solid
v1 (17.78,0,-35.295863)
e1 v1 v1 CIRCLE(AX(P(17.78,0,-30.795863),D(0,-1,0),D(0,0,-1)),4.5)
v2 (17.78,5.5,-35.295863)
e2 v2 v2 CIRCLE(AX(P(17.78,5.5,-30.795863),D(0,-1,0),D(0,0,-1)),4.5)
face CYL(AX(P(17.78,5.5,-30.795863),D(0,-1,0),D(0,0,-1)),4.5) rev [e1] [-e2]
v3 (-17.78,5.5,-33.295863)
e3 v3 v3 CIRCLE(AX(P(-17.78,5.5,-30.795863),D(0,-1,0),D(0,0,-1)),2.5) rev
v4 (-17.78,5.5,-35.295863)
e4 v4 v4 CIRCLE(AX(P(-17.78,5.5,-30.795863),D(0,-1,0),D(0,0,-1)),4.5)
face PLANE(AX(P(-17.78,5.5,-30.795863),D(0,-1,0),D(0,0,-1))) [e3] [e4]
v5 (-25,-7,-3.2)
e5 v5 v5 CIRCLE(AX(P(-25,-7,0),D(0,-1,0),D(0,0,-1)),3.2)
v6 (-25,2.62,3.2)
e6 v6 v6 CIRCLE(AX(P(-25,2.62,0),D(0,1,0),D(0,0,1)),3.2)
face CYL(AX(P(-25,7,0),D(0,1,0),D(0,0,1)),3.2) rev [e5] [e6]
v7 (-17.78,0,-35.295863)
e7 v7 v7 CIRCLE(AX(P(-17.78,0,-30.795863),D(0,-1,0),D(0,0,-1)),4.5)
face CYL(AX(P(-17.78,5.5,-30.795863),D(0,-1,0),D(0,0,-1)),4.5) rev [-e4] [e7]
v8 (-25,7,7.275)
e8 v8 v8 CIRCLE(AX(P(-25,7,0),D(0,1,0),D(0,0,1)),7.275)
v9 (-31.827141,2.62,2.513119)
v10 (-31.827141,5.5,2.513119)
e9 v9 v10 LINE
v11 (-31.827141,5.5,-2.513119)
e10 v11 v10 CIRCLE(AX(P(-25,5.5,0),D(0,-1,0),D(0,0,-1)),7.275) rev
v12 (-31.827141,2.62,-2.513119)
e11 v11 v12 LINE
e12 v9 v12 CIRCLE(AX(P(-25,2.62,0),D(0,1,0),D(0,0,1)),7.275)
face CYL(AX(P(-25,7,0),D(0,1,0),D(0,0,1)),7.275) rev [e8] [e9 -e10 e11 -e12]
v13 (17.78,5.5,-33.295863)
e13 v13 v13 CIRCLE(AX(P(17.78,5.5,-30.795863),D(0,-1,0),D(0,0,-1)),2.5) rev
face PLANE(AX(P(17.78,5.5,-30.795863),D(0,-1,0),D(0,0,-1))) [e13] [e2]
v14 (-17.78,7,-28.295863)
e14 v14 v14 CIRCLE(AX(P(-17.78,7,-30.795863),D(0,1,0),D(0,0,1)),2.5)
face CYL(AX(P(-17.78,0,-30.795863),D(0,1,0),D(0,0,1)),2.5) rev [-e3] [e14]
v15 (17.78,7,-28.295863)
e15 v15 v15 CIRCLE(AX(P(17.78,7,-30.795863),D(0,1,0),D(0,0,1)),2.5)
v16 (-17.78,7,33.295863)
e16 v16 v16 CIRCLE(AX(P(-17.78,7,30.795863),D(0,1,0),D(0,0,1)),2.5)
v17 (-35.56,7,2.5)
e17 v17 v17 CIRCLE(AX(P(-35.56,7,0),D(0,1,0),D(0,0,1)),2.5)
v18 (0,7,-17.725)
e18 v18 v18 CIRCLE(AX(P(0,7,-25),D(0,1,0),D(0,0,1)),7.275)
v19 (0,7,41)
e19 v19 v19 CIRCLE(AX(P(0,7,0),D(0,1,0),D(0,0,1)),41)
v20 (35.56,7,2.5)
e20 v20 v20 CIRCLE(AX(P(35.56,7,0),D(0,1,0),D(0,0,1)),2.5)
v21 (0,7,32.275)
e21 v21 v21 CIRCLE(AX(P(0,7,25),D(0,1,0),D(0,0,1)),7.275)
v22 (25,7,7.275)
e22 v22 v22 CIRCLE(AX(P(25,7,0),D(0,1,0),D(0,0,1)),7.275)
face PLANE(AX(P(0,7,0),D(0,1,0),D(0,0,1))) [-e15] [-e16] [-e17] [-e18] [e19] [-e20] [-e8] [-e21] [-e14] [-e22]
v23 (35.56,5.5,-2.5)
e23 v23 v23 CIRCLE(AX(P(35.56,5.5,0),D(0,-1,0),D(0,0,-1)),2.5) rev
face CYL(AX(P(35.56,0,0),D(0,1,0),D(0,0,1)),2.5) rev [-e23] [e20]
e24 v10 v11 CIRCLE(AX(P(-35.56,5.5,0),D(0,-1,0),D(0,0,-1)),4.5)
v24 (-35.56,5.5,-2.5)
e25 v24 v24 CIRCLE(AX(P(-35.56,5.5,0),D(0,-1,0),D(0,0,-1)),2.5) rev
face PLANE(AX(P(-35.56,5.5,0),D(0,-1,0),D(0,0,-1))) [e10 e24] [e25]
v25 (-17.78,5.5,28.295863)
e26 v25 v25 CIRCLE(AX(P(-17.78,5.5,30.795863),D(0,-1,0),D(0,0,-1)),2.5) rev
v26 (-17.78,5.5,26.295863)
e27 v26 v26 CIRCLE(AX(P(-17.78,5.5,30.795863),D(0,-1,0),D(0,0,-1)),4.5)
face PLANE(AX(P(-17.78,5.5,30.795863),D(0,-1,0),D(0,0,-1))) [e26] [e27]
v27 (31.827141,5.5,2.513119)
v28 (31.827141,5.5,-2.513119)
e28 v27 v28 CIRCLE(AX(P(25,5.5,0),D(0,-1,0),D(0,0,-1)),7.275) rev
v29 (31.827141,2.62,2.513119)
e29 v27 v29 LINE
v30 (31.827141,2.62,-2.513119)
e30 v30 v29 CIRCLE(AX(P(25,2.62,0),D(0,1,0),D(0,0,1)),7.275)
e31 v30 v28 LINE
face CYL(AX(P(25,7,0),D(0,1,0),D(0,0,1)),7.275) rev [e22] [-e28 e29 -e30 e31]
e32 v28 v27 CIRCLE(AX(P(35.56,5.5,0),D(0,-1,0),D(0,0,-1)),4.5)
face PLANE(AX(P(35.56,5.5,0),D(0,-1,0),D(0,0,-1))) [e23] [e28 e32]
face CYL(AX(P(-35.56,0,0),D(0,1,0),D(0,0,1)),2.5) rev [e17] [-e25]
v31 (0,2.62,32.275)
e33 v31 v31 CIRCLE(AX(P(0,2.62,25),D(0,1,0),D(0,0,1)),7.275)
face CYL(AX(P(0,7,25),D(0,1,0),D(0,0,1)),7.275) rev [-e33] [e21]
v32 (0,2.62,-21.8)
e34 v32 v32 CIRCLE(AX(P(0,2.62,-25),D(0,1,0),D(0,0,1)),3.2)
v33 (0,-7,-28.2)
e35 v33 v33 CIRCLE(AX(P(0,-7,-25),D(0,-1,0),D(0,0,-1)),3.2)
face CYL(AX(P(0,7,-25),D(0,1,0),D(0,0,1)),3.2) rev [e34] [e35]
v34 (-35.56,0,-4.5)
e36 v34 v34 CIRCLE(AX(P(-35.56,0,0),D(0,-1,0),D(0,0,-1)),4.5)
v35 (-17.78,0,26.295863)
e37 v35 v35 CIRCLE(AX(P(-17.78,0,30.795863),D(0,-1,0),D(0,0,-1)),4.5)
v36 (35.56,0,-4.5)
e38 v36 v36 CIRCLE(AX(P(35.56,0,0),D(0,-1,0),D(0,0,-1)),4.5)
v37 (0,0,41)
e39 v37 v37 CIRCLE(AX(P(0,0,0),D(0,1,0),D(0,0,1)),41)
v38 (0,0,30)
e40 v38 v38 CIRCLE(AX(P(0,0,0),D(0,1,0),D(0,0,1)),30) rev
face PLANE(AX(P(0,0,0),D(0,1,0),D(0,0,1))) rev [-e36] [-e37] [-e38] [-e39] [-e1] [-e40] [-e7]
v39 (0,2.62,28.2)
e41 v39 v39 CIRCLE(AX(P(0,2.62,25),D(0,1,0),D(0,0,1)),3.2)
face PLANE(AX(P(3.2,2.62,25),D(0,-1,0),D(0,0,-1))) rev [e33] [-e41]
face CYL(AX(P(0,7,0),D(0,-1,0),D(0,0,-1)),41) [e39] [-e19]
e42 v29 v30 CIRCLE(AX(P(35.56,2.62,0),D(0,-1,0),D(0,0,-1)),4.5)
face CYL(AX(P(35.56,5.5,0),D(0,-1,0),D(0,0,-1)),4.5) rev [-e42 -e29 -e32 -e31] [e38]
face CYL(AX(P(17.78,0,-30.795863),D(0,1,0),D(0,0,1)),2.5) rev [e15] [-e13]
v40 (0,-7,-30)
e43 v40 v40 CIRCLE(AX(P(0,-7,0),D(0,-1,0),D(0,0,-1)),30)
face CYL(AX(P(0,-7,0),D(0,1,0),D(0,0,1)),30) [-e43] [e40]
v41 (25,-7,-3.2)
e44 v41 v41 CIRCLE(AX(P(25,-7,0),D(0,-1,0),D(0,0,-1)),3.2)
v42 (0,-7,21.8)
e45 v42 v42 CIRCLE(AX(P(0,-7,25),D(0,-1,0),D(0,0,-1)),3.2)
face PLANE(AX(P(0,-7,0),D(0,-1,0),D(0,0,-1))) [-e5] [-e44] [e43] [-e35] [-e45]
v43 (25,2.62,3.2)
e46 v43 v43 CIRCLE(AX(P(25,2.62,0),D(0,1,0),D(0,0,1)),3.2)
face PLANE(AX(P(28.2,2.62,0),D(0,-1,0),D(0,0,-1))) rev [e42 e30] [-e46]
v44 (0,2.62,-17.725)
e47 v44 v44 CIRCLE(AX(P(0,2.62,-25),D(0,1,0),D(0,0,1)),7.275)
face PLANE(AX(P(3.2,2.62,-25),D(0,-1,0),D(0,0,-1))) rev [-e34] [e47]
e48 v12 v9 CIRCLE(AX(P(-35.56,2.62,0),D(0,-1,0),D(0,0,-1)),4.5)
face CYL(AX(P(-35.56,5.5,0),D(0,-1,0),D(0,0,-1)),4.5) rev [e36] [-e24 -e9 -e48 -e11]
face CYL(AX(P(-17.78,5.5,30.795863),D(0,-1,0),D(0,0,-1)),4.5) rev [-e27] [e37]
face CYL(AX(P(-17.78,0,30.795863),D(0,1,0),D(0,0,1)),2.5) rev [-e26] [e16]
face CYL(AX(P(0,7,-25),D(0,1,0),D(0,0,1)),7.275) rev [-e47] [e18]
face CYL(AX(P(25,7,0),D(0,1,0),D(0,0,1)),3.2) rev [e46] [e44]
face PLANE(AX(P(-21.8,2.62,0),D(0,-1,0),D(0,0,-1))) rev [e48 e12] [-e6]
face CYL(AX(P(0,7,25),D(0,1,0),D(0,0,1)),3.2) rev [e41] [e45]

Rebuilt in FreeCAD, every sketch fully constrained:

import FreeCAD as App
import Part
import Sketcher

V = App.Vector

doc = App.newDocument("Part")
params = doc.addObject("Spreadsheet::Sheet", "Params")
for row, (alias, value) in enumerate([
    ("sketch1_diameter", "82 mm"),
    ("pad1_length", "7 mm"),
    ("sketch2_diameter", "6.4 mm"),
    ("hole_diameter", "6.4 mm"),
    ("hole_cbore_diameter", "14.55 mm"),
    ("hole_cbore_depth", "4.38 mm"),
    ("sketch3_diameter", "5 mm"),
    ("sketch4_diameter", "9 mm"),
    ("pocket2_length", "5.5 mm"),
    ("sketch5_diameter", "60 mm"),
    ("sketch5_diameter2", "6.4 mm"),
    ("pad2_length", "7 mm"),
], start=1):
    params.set(f"A{row}", alias)
    params.set(f"B{row}", "=" + value)
    params.setAlias(f"B{row}", alias)

body = doc.addObject("PartDesign::Body", "Body")

sketch1 = body.newObject("Sketcher::SketchObject", "Sketch")
sketch1.AttachmentSupport = (doc.getObject("XZ_Plane"), [""])
sketch1.MapMode = "FlatFace"
sketch1.addGeometry(Part.Circle(V(0, 0, 0), V(0, 0, 1), 41), False)
sketch1.addConstraint([
    Sketcher.Constraint("Coincident", 0, 3, -1, 1),
    Sketcher.Constraint("Diameter", 0, 82.0),
])
sketch1.setExpression("Constraints[1]", "Params.sketch1_diameter")
pad1 = body.newObject("PartDesign::Pad", "Pad")
pad1.Profile = sketch1
pad1.setExpression("Length", "Params.pad1_length")
pad1.Reversed = True

sketch2 = body.newObject("Sketcher::SketchObject", "Sketch001")
sketch2.AttachmentSupport = (doc.getObject("XZ_Plane"), [""])
sketch2.MapMode = "FlatFace"
sketch2.AttachmentOffset = App.Placement(V(0, 0, -7), App.Rotation())
sketch2.addGeometry(Part.Circle(V(0, -25, 0), V(0, 0, 1), 3.2), False)
sketch2.addConstraint([
    Sketcher.Constraint("PointOnObject", 0, 3, -2),
    Sketcher.Constraint("Diameter", 0, 6.4),
    Sketcher.Constraint("DistanceY", 0, 3, -1, 1, 25.0),
])
sketch2.setExpression("Constraints[1]", "Params.sketch2_diameter")
doc.recompute()
hole = body.newObject("PartDesign::Hole", "Hole")
hole.Profile = sketch2
hole.ThreadType = "None"
hole.setExpression("Diameter", "Params.hole_diameter")
hole.DepthType = "ThroughAll"
hole.HoleCutType = "Counterbore"
hole.setExpression("HoleCutDiameter", "Params.hole_cbore_diameter")
hole.setExpression("HoleCutDepth", "Params.hole_cbore_depth")
hole.Reversed = True
doc.recompute()

polarpattern = body.newObject("PartDesign::PolarPattern", "PolarPattern")
polarpattern.Originals = [hole]
polarpattern.Axis = (doc.getObject("Y_Axis"), [""])
polarpattern.Angle = 360
polarpattern.Occurrences = 4
body.Tip = polarpattern

sketch3 = body.newObject("Sketcher::SketchObject", "Sketch002")
sketch3.AttachmentSupport = (doc.getObject("XZ_Plane"), [""])
sketch3.MapMode = "FlatFace"
sketch3.AttachmentOffset = App.Placement(V(0, 0, -7), App.Rotation())
sketch3.addGeometry([
    Part.Circle(V(35.6, 0, 0), V(0, 0, 1), 2.5),
    Part.Circle(V(17.8, -30.8, 0), V(0, 0, 1), 2.5),
    Part.Circle(V(-17.8, -30.8, 0), V(0, 0, 1), 2.5),
    Part.Circle(V(-35.6, 0, 0), V(0, 0, 1), 2.5),
    Part.Circle(V(-17.8, 30.8, 0), V(0, 0, 1), 2.5),
], False)
sketch3.addConstraint([
    Sketcher.Constraint("Equal", 0, 1),
    Sketcher.Constraint("Equal", 1, 2),
    Sketcher.Constraint("Equal", 2, 3),
    Sketcher.Constraint("Equal", 3, 4),
    Sketcher.Constraint("Symmetric", 0, 3, 3, 3, -1, 1),
    Sketcher.Constraint("Symmetric", 1, 3, 4, 3, -1, 1),
    Sketcher.Constraint("Symmetric", 1, 3, 2, 3, -2),
    Sketcher.Constraint("PointOnObject", 0, 3, -1),
    Sketcher.Constraint("Diameter", 0, 5.0),
    Sketcher.Constraint("DistanceX", -1, 1, 0, 3, 35.56),
    Sketcher.Constraint("DistanceX", -1, 1, 1, 3, 17.78),
    Sketcher.Constraint("DistanceY", 1, 3, -1, 1, 30.795863),
])
sketch3.setExpression("Constraints[8]", "Params.sketch3_diameter")
pocket1 = body.newObject("PartDesign::Pocket", "Pocket")
pocket1.Profile = sketch3
pocket1.Type = "ThroughAll"
pocket1.Reversed = True

sketch4 = body.newObject("Sketcher::SketchObject", "Sketch003")
sketch4.AttachmentSupport = (doc.getObject("XZ_Plane"), [""])
sketch4.MapMode = "FlatFace"
sketch4.addGeometry([
    Part.Circle(V(-17.8, 30.8, 0), V(0, 0, 1), 4.5),
    Part.Circle(V(-35.6, 0, 0), V(0, 0, 1), 4.5),
    Part.Circle(V(35.6, 0, 0), V(0, 0, 1), 4.5),
    Part.Circle(V(-17.8, -30.8, 0), V(0, 0, 1), 4.5),
    Part.Circle(V(17.8, -30.8, 0), V(0, 0, 1), 4.5),
], False)
sketch4.addConstraint([
    Sketcher.Constraint("Equal", 0, 1),
    Sketcher.Constraint("Equal", 1, 2),
    Sketcher.Constraint("Equal", 2, 3),
    Sketcher.Constraint("Equal", 3, 4),
    Sketcher.Constraint("Symmetric", 1, 3, 2, 3, -1, 1),
    Sketcher.Constraint("Symmetric", 0, 3, 4, 3, -1, 1),
    Sketcher.Constraint("Symmetric", 3, 3, 4, 3, -2),
    Sketcher.Constraint("PointOnObject", 1, 3, -1),
    Sketcher.Constraint("Diameter", 0, 9.0),
    Sketcher.Constraint("DistanceX", 0, 3, -1, 1, 17.78),
    Sketcher.Constraint("DistanceX", 1, 3, -1, 1, 35.56),
    Sketcher.Constraint("DistanceY", -1, 1, 0, 3, 30.795863),
])
sketch4.setExpression("Constraints[8]", "Params.sketch4_diameter")
pocket2 = body.newObject("PartDesign::Pocket", "Pocket001")
pocket2.Profile = sketch4
pocket2.setExpression("Length", "Params.pocket2_length")

sketch5 = body.newObject("Sketcher::SketchObject", "Sketch004")
sketch5.AttachmentSupport = (doc.getObject("XZ_Plane"), [""])
sketch5.MapMode = "FlatFace"
sketch5.AttachmentOffset = App.Placement(V(0, 0, 7), App.Rotation())
sketch5.addGeometry([
    Part.Circle(V(0, 0, 0), V(0, 0, 1), 30),
    Part.Circle(V(0, -25, 0), V(0, 0, 1), 3.2),
    Part.Circle(V(25, 0, 0), V(0, 0, 1), 3.2),
    Part.Circle(V(-25, 0, 0), V(0, 0, 1), 3.2),
    Part.Circle(V(0, 25, 0), V(0, 0, 1), 3.2),
], False)
sketch5.addConstraint([
    Sketcher.Constraint("Coincident", 0, 3, -1, 1),
    Sketcher.Constraint("Equal", 1, 2),
    Sketcher.Constraint("Equal", 2, 3),
    Sketcher.Constraint("Equal", 3, 4),
    Sketcher.Constraint("Symmetric", 2, 3, 3, 3, -1, 1),
    Sketcher.Constraint("Symmetric", 1, 3, 4, 3, -1, 1),
    Sketcher.Constraint("PointOnObject", 1, 3, -2),
    Sketcher.Constraint("PointOnObject", 2, 3, -1),
    Sketcher.Constraint("Diameter", 0, 60.0),
    Sketcher.Constraint("Diameter", 1, 6.4),
    Sketcher.Constraint("DistanceY", 1, 3, -1, 1, 25.0),
    Sketcher.Constraint("DistanceX", -1, 1, 2, 3, 25.0),
])
sketch5.setExpression("Constraints[8]", "Params.sketch5_diameter")
sketch5.setExpression("Constraints[9]", "Params.sketch5_diameter2")
pad2 = body.newObject("PartDesign::Pad", "Pad001")
pad2.Profile = sketch5
pad2.setExpression("Length", "Params.pad2_length")
pad2.Reversed = True

doc.recompute()
